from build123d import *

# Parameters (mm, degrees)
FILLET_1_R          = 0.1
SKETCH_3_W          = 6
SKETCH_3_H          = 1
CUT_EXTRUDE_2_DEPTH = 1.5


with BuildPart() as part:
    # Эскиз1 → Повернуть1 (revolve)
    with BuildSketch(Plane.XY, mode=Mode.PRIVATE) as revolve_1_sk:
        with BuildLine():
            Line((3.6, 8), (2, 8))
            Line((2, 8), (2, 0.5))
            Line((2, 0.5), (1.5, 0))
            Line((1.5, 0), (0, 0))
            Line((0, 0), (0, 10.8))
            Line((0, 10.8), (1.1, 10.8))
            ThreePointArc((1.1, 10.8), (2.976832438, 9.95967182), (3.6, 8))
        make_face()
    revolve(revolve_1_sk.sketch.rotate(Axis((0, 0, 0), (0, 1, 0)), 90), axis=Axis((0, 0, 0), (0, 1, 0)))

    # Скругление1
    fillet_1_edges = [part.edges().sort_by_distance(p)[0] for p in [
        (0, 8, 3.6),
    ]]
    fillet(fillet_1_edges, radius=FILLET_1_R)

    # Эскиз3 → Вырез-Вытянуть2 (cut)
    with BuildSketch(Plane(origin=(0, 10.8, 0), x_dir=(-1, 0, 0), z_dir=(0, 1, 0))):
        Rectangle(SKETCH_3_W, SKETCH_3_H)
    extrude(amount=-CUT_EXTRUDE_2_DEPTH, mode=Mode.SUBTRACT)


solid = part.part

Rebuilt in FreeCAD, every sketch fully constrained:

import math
import FreeCAD as App
import Part
import Sketcher

V = App.Vector
Q = App.Units.Quantity


def edges_at(feature, points):
    """Names of the edges that pass closest to the given points."""
    edges = feature.Shape.Edges
    near = lambda p: min(range(len(edges)), key=lambda i: edges[i].distToShape(Part.Vertex(*p))[0])
    return sorted({f"Edge{near(p) + 1}" for p in points})


def add_polygon(sketch, points):
    """Adds a closed chain of lines whose ends are joined by coincident constraints."""
    first, n = sketch.GeometryCount, len(points)
    for a, b in zip(points, points[1:] + points[:1]):
        sketch.addGeometry(Part.LineSegment(App.Vector(*a, 0), App.Vector(*b, 0)), False)
    for i in range(n):
        sketch.addConstraint(Sketcher.Constraint("Coincident", first + i, 2, first + (i + 1) % n, 1))

doc = App.newDocument("Part")
body = doc.addObject("PartDesign::Body", "Body")

# Sketch on XY plane
sketch1 = body.newObject("Sketcher::SketchObject", "Sketch")
sketch1.AttachmentSupport = (doc.getObject("XY_Plane"), [""])
sketch1.MapMode = "FlatFace"
sketch1.addGeometry([
    Part.LineSegment(V(2, 8, 0), V(3.6, 8, 0)),  # 0
    Part.ArcOfCircle(Part.Circle(V(1.1, 8.283929, 0), V(0, 0, 1), 2.516071), math.radians(-6.479401), math.radians(90)),  # 1
    Part.LineSegment(V(1.1, 10.8, 0), V(0, 10.8, 0)),  # 2
    Part.LineSegment(V(0, 10.8, 0), V(0, 0, 0)),  # 3
    Part.LineSegment(V(0, 0, 0), V(1.5, 0, 0)),  # 4
    Part.LineSegment(V(1.5, 0, 0), V(2, 0.5, 0)),  # 5
    Part.LineSegment(V(2, 0.5, 0), V(2, 8, 0)),  # 6
], False)
sketch1.addConstraint([
    Sketcher.Constraint("Coincident", 0, 2, 1, 1),
    Sketcher.Constraint("Tangent", 1, 2, 2, 1),
    Sketcher.Constraint("Coincident", 2, 2, 3, 1),
    Sketcher.Constraint("Coincident", 3, 2, 4, 1),
    Sketcher.Constraint("Coincident", 4, 2, 5, 1),
    Sketcher.Constraint("Coincident", 5, 2, 6, 1),
    Sketcher.Constraint("Coincident", 6, 2, 0, 1),
    Sketcher.Constraint("Horizontal", 0),
    Sketcher.Constraint("Horizontal", 2),
    Sketcher.Constraint("Vertical", 3),
    Sketcher.Constraint("Horizontal", 4),
    Sketcher.Constraint("Vertical", 6),
    Sketcher.Constraint("Coincident", 3, 2, -1, 1),
    Sketcher.Constraint("Angle", 5, Q("45 deg")),
    Sketcher.Constraint("DistanceX", 0, 1, 0, 2, 1.6),
    Sketcher.Constraint("DistanceX", 2, 2, 2, 1, 1.1),
    Sketcher.Constraint("DistanceX", 4, 1, 4, 2, 1.5),
    Sketcher.Constraint("DistanceY", 3, 2, 3, 1, 10.8),
    Sketcher.Constraint("DistanceY", 6, 1, 6, 2, 7.5),
    Sketcher.Constraint("DistanceY", -1, 1, 0, 2, 8.0),
])
revolution = body.newObject("PartDesign::Revolution", "Revolution")
revolution.Profile = sketch1
revolution.ReferenceAxis = (sketch1, ["V_Axis"])
revolution.Angle = 360
doc.recompute()

fillet = body.newObject("PartDesign::Fillet", "Fillet")
fillet.Base = (revolution, edges_at(revolution, [(0, 8, 3.6)]))
fillet.Radius = 0.1

# Sketch on XZ plane
sketch2 = body.newObject("Sketcher::SketchObject", "Sketch001")
sketch2.AttachmentSupport = (doc.getObject("XZ_Plane"), [""])
sketch2.MapMode = "FlatFace"
sketch2.AttachmentOffset = App.Placement(V(0, 0, -10.8), App.Rotation())
add_polygon(sketch2, [(3, 0.5), (3, -0.5), (-3, -0.5), (-3, 0.5)])  # lines 0-3
sketch2.addConstraint([
    Sketcher.Constraint("Vertical", 0),
    Sketcher.Constraint("Horizontal", 1),
    Sketcher.Constraint("Vertical", 2),
    Sketcher.Constraint("Horizontal", 3),
    Sketcher.Constraint("Symmetric", 0, 2, 2, 2, -1, 1),
    Sketcher.Constraint("DistanceX", 1, 2, 1, 1, 6.0),
    Sketcher.Constraint("DistanceY", 0, 2, 0, 1, 1.0),
])
pocket1 = body.newObject("PartDesign::Pocket", "Pocket")
pocket1.Profile = sketch2
pocket1.Length = 1.5
pocket1.Reversed = True

doc.recompute()
